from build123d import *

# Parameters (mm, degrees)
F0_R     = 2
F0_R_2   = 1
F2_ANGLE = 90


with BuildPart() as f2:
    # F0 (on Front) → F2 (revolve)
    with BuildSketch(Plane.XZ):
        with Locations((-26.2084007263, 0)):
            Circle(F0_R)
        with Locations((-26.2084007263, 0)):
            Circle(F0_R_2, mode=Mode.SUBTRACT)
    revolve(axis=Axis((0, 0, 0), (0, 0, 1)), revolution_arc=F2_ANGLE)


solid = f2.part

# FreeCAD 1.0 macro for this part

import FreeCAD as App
import Part
import Sketcher
from FreeCAD import Vector
Q = App.Units.Quantity

doc = App.newDocument("Part")
body = doc.addObject("PartDesign::Body", "Body")

# Sketch on XZ plane
sketch1 = doc.addObject("Sketcher::SketchObject", "Sketch")
body.addObject(sketch1)
sketch1.AttachmentSupport = (doc.XZ_Plane, [""])
sketch1.MapMode = "FlatFace"
sketch1.addGeometry(Part.Circle(Vector(-26.2, 0, 0), Vector(0, 0, 1), 2), False)
sketch1.addGeometry(Part.Circle(Vector(-26.2, 0, 0), Vector(0, 0, 1), 1), False)
sketch1.addConstraint(Sketcher.Constraint("Coincident", 1, 3, 0, 3))
sketch1.addConstraint(Sketcher.Constraint("PointOnObject", 0, 3, -1))
sketch1.addConstraint(Sketcher.Constraint("Diameter", 0, Q("4 mm")))
sketch1.addConstraint(Sketcher.Constraint("Diameter", 1, Q("2 mm")))
sketch1.addConstraint(Sketcher.Constraint("DistanceX", 0, 3, -1, 1, Q("26.208401 mm")))
revolution = doc.addObject("PartDesign::Revolution", "Revolution")
body.addObject(revolution)
revolution.Profile = sketch1
revolution.ReferenceAxis = (sketch1, ["V_Axis"])
revolution.Angle = 90

doc.recompute()
